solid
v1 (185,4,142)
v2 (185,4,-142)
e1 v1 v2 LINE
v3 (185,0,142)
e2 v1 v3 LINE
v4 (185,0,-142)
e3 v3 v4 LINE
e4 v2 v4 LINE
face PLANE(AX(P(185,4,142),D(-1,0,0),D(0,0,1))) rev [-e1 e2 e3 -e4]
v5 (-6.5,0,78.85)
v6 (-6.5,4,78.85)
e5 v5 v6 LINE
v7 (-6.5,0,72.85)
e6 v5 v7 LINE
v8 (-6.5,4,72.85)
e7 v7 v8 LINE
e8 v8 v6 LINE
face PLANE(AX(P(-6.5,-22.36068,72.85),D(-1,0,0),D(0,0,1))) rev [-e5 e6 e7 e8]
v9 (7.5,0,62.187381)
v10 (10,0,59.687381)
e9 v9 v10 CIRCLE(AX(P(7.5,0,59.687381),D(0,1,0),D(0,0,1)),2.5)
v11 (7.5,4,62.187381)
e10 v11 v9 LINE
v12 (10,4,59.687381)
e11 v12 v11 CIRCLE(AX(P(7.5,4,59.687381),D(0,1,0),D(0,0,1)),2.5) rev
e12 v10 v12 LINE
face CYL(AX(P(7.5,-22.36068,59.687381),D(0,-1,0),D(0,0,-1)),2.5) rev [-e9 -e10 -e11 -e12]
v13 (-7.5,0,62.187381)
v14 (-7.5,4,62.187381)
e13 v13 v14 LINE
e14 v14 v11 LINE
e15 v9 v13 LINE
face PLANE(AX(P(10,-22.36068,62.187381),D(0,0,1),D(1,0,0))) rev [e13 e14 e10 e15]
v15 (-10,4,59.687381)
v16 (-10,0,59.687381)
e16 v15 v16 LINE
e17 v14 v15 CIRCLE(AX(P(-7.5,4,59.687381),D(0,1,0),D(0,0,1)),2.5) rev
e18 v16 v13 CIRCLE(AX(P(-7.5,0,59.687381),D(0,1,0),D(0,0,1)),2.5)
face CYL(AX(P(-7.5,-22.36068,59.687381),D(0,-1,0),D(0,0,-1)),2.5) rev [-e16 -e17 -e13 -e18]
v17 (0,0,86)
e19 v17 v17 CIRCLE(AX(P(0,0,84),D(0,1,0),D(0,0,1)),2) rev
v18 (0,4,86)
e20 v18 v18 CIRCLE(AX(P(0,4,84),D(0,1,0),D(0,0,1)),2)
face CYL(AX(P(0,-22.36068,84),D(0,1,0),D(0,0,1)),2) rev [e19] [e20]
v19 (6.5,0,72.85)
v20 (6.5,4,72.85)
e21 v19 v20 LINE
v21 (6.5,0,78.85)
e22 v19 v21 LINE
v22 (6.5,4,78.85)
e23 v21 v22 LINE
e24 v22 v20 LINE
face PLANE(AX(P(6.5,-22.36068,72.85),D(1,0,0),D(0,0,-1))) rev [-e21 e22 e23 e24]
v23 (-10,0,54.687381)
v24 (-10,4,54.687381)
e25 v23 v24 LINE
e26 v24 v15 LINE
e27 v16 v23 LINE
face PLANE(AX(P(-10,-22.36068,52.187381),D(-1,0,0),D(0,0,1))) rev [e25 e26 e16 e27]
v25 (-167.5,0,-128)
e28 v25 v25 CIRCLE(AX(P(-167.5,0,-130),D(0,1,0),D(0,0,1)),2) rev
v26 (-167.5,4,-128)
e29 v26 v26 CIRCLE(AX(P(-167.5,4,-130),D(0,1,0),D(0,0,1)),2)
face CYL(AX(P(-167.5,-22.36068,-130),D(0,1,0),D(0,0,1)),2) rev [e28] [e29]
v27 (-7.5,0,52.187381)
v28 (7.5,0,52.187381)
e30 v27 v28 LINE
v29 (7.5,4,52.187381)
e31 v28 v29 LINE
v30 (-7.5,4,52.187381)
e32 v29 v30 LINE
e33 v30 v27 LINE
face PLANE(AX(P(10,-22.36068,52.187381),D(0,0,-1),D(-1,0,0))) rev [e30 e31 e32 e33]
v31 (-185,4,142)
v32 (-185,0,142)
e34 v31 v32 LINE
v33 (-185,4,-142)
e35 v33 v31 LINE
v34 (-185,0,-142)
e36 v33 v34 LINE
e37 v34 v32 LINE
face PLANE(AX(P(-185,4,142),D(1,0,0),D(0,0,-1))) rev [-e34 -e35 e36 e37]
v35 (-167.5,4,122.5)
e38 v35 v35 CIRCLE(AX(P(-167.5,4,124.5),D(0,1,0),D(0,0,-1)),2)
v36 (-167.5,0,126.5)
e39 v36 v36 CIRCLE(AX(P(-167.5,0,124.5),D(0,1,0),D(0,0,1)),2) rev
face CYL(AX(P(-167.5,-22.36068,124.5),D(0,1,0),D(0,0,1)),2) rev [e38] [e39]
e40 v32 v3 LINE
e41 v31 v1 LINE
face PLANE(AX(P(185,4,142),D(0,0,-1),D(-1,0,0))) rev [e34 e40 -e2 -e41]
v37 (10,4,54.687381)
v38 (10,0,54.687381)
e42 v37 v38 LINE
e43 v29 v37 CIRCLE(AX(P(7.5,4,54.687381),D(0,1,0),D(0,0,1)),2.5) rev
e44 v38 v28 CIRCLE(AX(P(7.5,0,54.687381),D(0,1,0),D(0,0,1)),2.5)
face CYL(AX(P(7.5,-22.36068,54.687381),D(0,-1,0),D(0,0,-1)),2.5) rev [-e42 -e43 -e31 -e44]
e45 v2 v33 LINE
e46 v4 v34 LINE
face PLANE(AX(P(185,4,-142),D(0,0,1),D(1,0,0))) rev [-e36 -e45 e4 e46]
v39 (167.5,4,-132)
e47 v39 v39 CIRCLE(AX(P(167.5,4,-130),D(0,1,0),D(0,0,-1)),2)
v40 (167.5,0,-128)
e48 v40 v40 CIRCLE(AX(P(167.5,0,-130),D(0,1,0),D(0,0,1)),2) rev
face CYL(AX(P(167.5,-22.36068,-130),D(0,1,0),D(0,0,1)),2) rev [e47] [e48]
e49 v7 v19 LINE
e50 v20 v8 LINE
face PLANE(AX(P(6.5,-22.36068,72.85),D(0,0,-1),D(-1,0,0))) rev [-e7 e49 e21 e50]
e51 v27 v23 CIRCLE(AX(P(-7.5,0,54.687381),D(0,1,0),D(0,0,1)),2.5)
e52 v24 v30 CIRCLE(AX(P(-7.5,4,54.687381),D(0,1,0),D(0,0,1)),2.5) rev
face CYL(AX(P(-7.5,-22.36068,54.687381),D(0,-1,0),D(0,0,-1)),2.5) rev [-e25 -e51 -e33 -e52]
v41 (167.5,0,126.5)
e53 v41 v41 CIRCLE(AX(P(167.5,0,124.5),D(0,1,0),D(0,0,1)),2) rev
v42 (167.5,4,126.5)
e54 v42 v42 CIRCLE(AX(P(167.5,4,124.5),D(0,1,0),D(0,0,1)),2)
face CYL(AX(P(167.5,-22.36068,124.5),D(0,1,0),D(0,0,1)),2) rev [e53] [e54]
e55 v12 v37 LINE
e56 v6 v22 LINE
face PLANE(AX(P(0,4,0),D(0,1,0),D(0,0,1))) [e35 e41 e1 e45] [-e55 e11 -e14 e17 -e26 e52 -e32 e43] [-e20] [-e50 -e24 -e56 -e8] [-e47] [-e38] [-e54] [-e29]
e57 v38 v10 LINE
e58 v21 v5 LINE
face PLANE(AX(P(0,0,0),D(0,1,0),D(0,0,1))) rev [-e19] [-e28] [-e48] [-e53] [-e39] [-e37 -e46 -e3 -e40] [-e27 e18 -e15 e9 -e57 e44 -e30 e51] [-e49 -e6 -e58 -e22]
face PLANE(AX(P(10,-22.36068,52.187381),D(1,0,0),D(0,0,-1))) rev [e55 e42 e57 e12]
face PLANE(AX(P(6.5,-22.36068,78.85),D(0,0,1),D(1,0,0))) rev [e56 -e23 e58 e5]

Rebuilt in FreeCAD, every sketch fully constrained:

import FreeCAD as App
import Part
import Sketcher
Q = App.Units.Quantity


def edges_at(feature, points):
    """Names of the edges that pass closest to the given points."""
    edges = feature.Shape.Edges
    near = lambda p: min(range(len(edges)), key=lambda i: edges[i].distToShape(Part.Vertex(*p))[0])
    return sorted({f"Edge{near(p) + 1}" for p in points})

doc = App.newDocument("Part")
body = doc.addObject("PartDesign::Body", "Body")

# Sketch on XZ plane
sketch1 = body.newObject("Sketcher::SketchObject", "Sketch")
sketch1.AttachmentSupport = (doc.getObject("XZ_Plane"), [""])
sketch1.MapMode = "FlatFace"
sketch1.addGeometry([
    Part.LineSegment(App.Vector(-185, -142, 0), App.Vector(-185, 142, 0)),
    Part.LineSegment(App.Vector(-185, 142, 0), App.Vector(185, 142, 0)),
    Part.LineSegment(App.Vector(185, 142, 0), App.Vector(185, -142, 0)),
    Part.LineSegment(App.Vector(185, -142, 0), App.Vector(-185, -142, 0)),
], False)
sketch1.addConstraint([
    Sketcher.Constraint("Coincident", 0, 2, 1, 1),
    Sketcher.Constraint("Coincident", 1, 2, 2, 1),
    Sketcher.Constraint("Coincident", 2, 2, 3, 1),
    Sketcher.Constraint("Coincident", 3, 2, 0, 1),
    Sketcher.Constraint("Vertical", 0),
    Sketcher.Constraint("Horizontal", 1),
    Sketcher.Constraint("Vertical", 2),
    Sketcher.Constraint("Horizontal", 3),
    Sketcher.Constraint("Symmetric", 0, 2, 2, 2, -1, 1),
    Sketcher.Constraint("DistanceX", 1, 1, 1, 2, Q("370 mm")),
    Sketcher.Constraint("DistanceY", 0, 1, 0, 2, Q("284 mm")),
])
pad1 = body.newObject("PartDesign::Pad", "Pad")
pad1.Profile = sketch1
pad1.Length = 4
pad1.Reversed = True

# Sketch on XZ plane
sketch2 = body.newObject("Sketcher::SketchObject", "Sketch001")
sketch2.AttachmentSupport = (doc.getObject("XZ_Plane"), [""])
sketch2.MapMode = "FlatFace"
sketch2.AttachmentOffset = App.Placement(App.Vector(0, 0, -4), App.Rotation())
sketch2.addGeometry([
    Part.Circle(App.Vector(-167.5, -130, 0), App.Vector(0, 0, 1), 2),  # 0
    Part.Circle(App.Vector(-167.5, 124.5, 0), App.Vector(0, 0, 1), 2),  # 1
    Part.Circle(App.Vector(167.5, 124.5, 0), App.Vector(0, 0, 1), 2),  # 2
    Part.Circle(App.Vector(167.5, -130, 0), App.Vector(0, 0, 1), 2),  # 3
    Part.Circle(App.Vector(0, 84, 0), App.Vector(0, 0, 1), 2),  # 4
    Part.LineSegment(App.Vector(-6.5, 72.8, 0), App.Vector(-6.5, 78.8, 0)),  # 5
    Part.LineSegment(App.Vector(-6.5, 78.8, 0), App.Vector(6.5, 78.8, 0)),  # 6
    Part.LineSegment(App.Vector(6.5, 78.8, 0), App.Vector(6.5, 72.8, 0)),  # 7
    Part.LineSegment(App.Vector(6.5, 72.8, 0), App.Vector(-6.5, 72.8, 0)),  # 8
    Part.LineSegment(App.Vector(-10, 52.2, 0), App.Vector(-10, 62.2, 0)),  # 9
    Part.LineSegment(App.Vector(-10, 62.2, 0), App.Vector(10, 62.2, 0)),  # 10
    Part.LineSegment(App.Vector(10, 62.2, 0), App.Vector(10, 52.2, 0)),  # 11
    Part.LineSegment(App.Vector(10, 52.2, 0), App.Vector(-10, 52.2, 0)),  # 12
], False)
sketch2.addConstraint([
    Sketcher.Constraint("Coincident", 5, 2, 6, 1),
    Sketcher.Constraint("Coincident", 6, 2, 7, 1),
    Sketcher.Constraint("Coincident", 7, 2, 8, 1),
    Sketcher.Constraint("Coincident", 8, 2, 5, 1),
    Sketcher.Constraint("Coincident", 9, 2, 10, 1),
    Sketcher.Constraint("Coincident", 10, 2, 11, 1),
    Sketcher.Constraint("Coincident", 11, 2, 12, 1),
    Sketcher.Constraint("Coincident", 12, 2, 9, 1),
    Sketcher.Constraint("Vertical", 5),
    Sketcher.Constraint("Horizontal", 6),
    Sketcher.Constraint("Vertical", 7),
    Sketcher.Constraint("Horizontal", 8),
    Sketcher.Constraint("Vertical", 9),
    Sketcher.Constraint("Horizontal", 10),
    Sketcher.Constraint("Vertical", 11),
    Sketcher.Constraint("Horizontal", 12),
    Sketcher.Constraint("Equal", 0, 1),
    Sketcher.Constraint("Equal", 1, 2),
    Sketcher.Constraint("Equal", 2, 3),
    Sketcher.Constraint("Equal", 3, 4),
    Sketcher.Constraint("Symmetric", 1, 3, 2, 3, -2),
    Sketcher.Constraint("Symmetric", 0, 3, 3, 3, -2),
    Sketcher.Constraint("PointOnObject", 4, 3, -2),
    Sketcher.Constraint("Vertical", 0, 3, 1, 3),
    Sketcher.Constraint("Diameter", 0, Q("4 mm")),
    Sketcher.Constraint("DistanceX", 6, 1, 6, 2, Q("13 mm")),
    Sketcher.Constraint("DistanceX", 10, 1, 10, 2, Q("20 mm")),
    Sketcher.Constraint("DistanceY", 5, 1, 5, 2, Q("6 mm")),
    Sketcher.Constraint("DistanceY", 9, 1, 9, 2, Q("10 mm")),
    Sketcher.Constraint("DistanceY", 0, 3, -1, 1, Q("130 mm")),
    Sketcher.Constraint("DistanceY", -1, 1, 4, 3, Q("84 mm")),
    Sketcher.Constraint("DistanceX", 9, 2, -1, 1, Q("10 mm")),
    Sketcher.Constraint("DistanceX", 1, 3, 2, 3, Q("335 mm")),
    Sketcher.Constraint("DistanceX", 1, 3, 5, 2, Q("161 mm")),
    Sketcher.Constraint("DistanceY", -1, 1, 1, 3, Q("124.5 mm")),
    Sketcher.Constraint("DistanceY", -1, 1, 5, 2, Q("78.85 mm")),
    Sketcher.Constraint("DistanceY", -1, 1, 9, 2, Q("62.187381 mm")),
])
pocket1 = body.newObject("PartDesign::Pocket", "Pocket")
pocket1.Profile = sketch2
pocket1.Length = 4
pocket1.Reversed = True
doc.recompute()

fillet = body.newObject("PartDesign::Fillet", "Fillet")
fillet.Base = (pocket1, edges_at(pocket1, [
    (-10, 2, 62.187),
    (-10, 2, 52.187),
    (10, 2, 52.187),
    (10, 2, 62.187),
]))
fillet.Radius = 2.5

doc.recompute()
